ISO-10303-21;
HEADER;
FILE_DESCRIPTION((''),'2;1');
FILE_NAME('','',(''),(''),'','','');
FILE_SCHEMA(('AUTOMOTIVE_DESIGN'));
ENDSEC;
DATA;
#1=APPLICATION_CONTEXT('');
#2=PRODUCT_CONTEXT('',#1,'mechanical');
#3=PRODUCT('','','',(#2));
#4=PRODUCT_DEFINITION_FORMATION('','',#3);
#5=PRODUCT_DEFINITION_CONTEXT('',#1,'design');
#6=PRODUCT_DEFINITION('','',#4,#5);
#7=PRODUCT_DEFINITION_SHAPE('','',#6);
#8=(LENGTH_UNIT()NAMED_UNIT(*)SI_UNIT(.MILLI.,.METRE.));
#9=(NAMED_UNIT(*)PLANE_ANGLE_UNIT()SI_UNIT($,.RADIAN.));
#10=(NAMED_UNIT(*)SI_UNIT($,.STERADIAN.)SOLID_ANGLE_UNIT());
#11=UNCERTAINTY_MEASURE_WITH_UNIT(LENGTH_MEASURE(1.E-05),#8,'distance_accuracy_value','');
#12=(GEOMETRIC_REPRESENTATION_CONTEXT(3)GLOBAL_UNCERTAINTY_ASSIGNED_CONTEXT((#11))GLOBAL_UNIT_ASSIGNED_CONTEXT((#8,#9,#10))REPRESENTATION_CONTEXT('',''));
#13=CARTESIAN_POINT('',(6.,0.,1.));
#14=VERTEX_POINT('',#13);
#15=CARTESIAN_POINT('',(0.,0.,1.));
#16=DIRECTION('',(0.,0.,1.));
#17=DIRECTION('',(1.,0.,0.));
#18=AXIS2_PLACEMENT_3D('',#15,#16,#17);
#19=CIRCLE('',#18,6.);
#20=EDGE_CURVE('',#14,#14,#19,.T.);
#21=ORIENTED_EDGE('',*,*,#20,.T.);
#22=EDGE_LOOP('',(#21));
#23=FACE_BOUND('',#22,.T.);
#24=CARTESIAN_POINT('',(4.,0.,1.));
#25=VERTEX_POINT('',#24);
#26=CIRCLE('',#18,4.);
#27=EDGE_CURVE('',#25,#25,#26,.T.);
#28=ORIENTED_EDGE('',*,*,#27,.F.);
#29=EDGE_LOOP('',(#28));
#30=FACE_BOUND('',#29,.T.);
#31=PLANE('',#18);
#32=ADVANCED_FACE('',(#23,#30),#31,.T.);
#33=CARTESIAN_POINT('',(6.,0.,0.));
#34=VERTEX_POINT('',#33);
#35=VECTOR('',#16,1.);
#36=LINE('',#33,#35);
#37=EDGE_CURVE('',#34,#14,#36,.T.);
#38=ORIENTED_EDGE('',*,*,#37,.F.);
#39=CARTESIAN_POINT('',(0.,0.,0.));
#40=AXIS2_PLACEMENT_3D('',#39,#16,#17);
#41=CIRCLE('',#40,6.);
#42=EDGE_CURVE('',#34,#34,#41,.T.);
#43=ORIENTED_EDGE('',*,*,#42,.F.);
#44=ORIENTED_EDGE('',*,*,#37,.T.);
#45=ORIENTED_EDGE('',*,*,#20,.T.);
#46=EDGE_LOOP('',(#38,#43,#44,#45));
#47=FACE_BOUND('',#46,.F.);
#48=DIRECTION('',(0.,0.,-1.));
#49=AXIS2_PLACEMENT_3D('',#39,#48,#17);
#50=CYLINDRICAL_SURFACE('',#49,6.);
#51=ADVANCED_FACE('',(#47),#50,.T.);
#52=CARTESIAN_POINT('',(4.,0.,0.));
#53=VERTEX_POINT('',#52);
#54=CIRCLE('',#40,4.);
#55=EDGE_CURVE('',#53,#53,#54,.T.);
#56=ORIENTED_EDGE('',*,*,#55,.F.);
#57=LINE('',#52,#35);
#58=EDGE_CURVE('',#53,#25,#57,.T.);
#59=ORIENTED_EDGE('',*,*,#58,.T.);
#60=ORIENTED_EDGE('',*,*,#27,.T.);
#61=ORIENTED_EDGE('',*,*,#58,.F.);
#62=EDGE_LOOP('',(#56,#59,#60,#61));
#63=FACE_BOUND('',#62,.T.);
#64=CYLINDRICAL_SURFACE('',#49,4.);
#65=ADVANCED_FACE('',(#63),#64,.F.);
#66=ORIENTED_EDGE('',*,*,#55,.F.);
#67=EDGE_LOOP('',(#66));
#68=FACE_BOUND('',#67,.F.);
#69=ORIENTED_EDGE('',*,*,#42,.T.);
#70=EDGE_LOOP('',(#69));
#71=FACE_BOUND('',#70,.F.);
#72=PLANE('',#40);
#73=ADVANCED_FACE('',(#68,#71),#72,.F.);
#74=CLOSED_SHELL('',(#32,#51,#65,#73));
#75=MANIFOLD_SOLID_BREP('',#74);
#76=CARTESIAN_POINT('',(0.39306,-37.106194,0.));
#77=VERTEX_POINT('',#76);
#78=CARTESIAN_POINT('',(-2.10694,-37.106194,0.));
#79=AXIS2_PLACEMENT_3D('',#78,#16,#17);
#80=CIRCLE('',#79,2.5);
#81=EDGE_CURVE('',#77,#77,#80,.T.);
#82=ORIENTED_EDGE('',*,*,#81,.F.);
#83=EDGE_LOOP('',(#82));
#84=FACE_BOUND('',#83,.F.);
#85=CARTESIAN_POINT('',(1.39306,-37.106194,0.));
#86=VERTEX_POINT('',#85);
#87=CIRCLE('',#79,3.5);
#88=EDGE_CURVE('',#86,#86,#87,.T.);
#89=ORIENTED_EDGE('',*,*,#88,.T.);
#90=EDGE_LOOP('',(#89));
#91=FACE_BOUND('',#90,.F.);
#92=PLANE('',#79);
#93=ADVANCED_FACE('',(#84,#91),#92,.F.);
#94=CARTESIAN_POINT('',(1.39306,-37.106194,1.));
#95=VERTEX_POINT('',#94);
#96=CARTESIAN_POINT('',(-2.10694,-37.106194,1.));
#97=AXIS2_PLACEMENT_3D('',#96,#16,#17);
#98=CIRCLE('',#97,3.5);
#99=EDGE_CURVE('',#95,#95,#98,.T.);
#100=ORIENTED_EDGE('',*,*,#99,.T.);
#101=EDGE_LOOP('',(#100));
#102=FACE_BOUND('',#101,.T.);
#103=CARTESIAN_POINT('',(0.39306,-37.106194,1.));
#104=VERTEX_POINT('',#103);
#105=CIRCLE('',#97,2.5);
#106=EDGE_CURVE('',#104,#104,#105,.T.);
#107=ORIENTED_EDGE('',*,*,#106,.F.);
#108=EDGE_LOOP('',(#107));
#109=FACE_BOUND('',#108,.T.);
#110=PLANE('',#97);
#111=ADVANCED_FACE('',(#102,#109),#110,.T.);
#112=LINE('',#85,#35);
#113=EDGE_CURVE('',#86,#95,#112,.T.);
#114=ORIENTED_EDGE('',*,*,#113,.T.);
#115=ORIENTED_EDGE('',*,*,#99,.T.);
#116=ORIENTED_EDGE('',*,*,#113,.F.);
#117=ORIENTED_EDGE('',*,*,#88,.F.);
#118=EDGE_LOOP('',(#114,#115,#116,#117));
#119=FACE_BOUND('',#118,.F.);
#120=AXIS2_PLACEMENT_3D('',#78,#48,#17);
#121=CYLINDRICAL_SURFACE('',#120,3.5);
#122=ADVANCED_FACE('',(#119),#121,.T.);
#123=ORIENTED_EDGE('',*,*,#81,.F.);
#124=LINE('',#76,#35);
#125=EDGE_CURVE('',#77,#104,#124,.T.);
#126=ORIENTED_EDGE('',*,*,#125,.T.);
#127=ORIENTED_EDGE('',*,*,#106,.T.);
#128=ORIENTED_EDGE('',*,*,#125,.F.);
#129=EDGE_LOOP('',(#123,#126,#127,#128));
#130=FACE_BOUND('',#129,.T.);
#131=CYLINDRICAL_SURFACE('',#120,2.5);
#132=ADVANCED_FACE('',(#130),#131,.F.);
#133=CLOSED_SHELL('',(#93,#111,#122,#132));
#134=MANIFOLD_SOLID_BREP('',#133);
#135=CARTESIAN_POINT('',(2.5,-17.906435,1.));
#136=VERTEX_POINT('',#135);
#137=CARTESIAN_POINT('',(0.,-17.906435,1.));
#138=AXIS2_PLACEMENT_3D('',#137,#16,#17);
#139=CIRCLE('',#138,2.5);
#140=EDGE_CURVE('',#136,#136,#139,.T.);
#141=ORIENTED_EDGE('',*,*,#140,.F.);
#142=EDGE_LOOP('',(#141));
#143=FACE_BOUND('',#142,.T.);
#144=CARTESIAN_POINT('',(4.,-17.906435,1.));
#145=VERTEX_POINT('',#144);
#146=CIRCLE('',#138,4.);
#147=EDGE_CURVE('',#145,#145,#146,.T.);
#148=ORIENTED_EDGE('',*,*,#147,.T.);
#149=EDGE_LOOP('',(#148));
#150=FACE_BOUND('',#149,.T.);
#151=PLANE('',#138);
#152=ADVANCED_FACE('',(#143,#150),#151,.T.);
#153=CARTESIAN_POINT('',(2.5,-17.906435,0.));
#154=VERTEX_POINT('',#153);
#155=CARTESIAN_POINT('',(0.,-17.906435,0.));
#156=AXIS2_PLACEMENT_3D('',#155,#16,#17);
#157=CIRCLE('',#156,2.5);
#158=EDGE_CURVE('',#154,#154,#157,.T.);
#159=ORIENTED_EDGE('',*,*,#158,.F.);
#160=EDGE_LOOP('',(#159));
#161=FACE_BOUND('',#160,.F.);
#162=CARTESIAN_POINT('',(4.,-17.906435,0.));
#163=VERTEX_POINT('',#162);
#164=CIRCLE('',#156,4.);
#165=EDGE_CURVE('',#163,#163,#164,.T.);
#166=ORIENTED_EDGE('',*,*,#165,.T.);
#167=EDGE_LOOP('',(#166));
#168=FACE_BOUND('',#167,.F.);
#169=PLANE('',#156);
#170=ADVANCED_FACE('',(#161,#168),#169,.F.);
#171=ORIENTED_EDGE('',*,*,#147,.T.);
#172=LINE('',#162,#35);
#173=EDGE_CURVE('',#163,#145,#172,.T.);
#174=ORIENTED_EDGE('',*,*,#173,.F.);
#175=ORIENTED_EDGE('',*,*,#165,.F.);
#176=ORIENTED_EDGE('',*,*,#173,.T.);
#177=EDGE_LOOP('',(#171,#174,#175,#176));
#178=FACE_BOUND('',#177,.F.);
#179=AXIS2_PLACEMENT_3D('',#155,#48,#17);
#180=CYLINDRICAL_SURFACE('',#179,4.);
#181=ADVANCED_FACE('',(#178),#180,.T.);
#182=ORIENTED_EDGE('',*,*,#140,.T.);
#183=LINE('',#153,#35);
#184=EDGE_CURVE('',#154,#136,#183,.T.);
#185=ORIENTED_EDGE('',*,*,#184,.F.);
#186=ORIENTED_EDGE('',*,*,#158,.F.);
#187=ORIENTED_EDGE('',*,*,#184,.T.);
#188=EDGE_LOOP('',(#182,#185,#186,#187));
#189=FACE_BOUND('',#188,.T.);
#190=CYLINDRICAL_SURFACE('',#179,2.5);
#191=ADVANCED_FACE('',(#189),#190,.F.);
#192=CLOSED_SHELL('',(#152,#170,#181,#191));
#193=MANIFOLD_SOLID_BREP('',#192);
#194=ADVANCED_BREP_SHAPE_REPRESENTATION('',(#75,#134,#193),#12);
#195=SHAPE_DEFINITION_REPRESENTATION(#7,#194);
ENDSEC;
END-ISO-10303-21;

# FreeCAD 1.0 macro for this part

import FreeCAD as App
import Part
import Sketcher

V = App.Vector

doc = App.newDocument("Part")
body = doc.addObject("PartDesign::Body", "Body")

sketch1 = doc.addObject("Sketcher::SketchObject", "Sketch")
body.addObject(sketch1)
sketch1.AttachmentSupport = (doc.XY_Plane, [""])
sketch1.MapMode = "FlatFace"
sketch1.addGeometry([
    Part.Circle(V(0, 0, 0), V(0, 0, 1), 6),
    Part.Circle(V(0, 0, 0), V(0, 0, 1), 4),
], False)
sketch1.addConstraint([
    Sketcher.Constraint("Coincident", 0, 3, -1, 1),
    Sketcher.Constraint("Coincident", 1, 3, -1, 1),
    Sketcher.Constraint("Diameter", 0, 12.0),
    Sketcher.Constraint("Diameter", 1, 8.0),
])
pad1 = doc.addObject("PartDesign::Pad", "Pad")
body.addObject(pad1)
pad1.Profile = sketch1
pad1.Length = 1
body2 = doc.addObject("PartDesign::Body", "Body001")

sketch2 = doc.addObject("Sketcher::SketchObject", "Sketch001")
body2.addObject(sketch2)
sketch2.AttachmentSupport = (doc.getObject("XY_Plane001"), [""])
sketch2.MapMode = "FlatFace"
sketch2.addGeometry([
    Part.Circle(V(0, -17.9, 0), V(0, 0, 1), 4),
    Part.Circle(V(0, -17.9, 0), V(0, 0, 1), 2.5),
], False)
sketch2.addConstraint([
    Sketcher.Constraint("Coincident", 1, 3, 0, 3),
    Sketcher.Constraint("PointOnObject", 0, 3, -2),
    Sketcher.Constraint("Diameter", 0, 8.0),
    Sketcher.Constraint("Diameter", 1, 5.0),
    Sketcher.Constraint("DistanceY", 0, 3, -1, 1, 17.906435),
])
pad2 = doc.addObject("PartDesign::Pad", "Pad001")
body2.addObject(pad2)
pad2.Profile = sketch2
pad2.Length = 1
body3 = doc.addObject("PartDesign::Body", "Body002")

sketch3 = doc.addObject("Sketcher::SketchObject", "Sketch002")
body3.addObject(sketch3)
sketch3.AttachmentSupport = (doc.getObject("XY_Plane002"), [""])
sketch3.MapMode = "FlatFace"
sketch3.addGeometry([
    Part.Circle(V(-2.1, -37.1, 0), V(0, 0, 1), 3.5),
    Part.Circle(V(-2.1, -37.1, 0), V(0, 0, 1), 2.5),
], False)
sketch3.addConstraint([
    Sketcher.Constraint("Coincident", 1, 3, 0, 3),
    Sketcher.Constraint("Diameter", 0, 7.0),
    Sketcher.Constraint("Diameter", 1, 5.0),
    Sketcher.Constraint("DistanceX", 0, 3, -1, 1, 2.10694),
    Sketcher.Constraint("DistanceY", 0, 3, -1, 1, 37.106194),
])
pad3 = doc.addObject("PartDesign::Pad", "Pad002")
body3.addObject(pad3)
pad3.Profile = sketch3
pad3.Length = 1

doc.recompute()
